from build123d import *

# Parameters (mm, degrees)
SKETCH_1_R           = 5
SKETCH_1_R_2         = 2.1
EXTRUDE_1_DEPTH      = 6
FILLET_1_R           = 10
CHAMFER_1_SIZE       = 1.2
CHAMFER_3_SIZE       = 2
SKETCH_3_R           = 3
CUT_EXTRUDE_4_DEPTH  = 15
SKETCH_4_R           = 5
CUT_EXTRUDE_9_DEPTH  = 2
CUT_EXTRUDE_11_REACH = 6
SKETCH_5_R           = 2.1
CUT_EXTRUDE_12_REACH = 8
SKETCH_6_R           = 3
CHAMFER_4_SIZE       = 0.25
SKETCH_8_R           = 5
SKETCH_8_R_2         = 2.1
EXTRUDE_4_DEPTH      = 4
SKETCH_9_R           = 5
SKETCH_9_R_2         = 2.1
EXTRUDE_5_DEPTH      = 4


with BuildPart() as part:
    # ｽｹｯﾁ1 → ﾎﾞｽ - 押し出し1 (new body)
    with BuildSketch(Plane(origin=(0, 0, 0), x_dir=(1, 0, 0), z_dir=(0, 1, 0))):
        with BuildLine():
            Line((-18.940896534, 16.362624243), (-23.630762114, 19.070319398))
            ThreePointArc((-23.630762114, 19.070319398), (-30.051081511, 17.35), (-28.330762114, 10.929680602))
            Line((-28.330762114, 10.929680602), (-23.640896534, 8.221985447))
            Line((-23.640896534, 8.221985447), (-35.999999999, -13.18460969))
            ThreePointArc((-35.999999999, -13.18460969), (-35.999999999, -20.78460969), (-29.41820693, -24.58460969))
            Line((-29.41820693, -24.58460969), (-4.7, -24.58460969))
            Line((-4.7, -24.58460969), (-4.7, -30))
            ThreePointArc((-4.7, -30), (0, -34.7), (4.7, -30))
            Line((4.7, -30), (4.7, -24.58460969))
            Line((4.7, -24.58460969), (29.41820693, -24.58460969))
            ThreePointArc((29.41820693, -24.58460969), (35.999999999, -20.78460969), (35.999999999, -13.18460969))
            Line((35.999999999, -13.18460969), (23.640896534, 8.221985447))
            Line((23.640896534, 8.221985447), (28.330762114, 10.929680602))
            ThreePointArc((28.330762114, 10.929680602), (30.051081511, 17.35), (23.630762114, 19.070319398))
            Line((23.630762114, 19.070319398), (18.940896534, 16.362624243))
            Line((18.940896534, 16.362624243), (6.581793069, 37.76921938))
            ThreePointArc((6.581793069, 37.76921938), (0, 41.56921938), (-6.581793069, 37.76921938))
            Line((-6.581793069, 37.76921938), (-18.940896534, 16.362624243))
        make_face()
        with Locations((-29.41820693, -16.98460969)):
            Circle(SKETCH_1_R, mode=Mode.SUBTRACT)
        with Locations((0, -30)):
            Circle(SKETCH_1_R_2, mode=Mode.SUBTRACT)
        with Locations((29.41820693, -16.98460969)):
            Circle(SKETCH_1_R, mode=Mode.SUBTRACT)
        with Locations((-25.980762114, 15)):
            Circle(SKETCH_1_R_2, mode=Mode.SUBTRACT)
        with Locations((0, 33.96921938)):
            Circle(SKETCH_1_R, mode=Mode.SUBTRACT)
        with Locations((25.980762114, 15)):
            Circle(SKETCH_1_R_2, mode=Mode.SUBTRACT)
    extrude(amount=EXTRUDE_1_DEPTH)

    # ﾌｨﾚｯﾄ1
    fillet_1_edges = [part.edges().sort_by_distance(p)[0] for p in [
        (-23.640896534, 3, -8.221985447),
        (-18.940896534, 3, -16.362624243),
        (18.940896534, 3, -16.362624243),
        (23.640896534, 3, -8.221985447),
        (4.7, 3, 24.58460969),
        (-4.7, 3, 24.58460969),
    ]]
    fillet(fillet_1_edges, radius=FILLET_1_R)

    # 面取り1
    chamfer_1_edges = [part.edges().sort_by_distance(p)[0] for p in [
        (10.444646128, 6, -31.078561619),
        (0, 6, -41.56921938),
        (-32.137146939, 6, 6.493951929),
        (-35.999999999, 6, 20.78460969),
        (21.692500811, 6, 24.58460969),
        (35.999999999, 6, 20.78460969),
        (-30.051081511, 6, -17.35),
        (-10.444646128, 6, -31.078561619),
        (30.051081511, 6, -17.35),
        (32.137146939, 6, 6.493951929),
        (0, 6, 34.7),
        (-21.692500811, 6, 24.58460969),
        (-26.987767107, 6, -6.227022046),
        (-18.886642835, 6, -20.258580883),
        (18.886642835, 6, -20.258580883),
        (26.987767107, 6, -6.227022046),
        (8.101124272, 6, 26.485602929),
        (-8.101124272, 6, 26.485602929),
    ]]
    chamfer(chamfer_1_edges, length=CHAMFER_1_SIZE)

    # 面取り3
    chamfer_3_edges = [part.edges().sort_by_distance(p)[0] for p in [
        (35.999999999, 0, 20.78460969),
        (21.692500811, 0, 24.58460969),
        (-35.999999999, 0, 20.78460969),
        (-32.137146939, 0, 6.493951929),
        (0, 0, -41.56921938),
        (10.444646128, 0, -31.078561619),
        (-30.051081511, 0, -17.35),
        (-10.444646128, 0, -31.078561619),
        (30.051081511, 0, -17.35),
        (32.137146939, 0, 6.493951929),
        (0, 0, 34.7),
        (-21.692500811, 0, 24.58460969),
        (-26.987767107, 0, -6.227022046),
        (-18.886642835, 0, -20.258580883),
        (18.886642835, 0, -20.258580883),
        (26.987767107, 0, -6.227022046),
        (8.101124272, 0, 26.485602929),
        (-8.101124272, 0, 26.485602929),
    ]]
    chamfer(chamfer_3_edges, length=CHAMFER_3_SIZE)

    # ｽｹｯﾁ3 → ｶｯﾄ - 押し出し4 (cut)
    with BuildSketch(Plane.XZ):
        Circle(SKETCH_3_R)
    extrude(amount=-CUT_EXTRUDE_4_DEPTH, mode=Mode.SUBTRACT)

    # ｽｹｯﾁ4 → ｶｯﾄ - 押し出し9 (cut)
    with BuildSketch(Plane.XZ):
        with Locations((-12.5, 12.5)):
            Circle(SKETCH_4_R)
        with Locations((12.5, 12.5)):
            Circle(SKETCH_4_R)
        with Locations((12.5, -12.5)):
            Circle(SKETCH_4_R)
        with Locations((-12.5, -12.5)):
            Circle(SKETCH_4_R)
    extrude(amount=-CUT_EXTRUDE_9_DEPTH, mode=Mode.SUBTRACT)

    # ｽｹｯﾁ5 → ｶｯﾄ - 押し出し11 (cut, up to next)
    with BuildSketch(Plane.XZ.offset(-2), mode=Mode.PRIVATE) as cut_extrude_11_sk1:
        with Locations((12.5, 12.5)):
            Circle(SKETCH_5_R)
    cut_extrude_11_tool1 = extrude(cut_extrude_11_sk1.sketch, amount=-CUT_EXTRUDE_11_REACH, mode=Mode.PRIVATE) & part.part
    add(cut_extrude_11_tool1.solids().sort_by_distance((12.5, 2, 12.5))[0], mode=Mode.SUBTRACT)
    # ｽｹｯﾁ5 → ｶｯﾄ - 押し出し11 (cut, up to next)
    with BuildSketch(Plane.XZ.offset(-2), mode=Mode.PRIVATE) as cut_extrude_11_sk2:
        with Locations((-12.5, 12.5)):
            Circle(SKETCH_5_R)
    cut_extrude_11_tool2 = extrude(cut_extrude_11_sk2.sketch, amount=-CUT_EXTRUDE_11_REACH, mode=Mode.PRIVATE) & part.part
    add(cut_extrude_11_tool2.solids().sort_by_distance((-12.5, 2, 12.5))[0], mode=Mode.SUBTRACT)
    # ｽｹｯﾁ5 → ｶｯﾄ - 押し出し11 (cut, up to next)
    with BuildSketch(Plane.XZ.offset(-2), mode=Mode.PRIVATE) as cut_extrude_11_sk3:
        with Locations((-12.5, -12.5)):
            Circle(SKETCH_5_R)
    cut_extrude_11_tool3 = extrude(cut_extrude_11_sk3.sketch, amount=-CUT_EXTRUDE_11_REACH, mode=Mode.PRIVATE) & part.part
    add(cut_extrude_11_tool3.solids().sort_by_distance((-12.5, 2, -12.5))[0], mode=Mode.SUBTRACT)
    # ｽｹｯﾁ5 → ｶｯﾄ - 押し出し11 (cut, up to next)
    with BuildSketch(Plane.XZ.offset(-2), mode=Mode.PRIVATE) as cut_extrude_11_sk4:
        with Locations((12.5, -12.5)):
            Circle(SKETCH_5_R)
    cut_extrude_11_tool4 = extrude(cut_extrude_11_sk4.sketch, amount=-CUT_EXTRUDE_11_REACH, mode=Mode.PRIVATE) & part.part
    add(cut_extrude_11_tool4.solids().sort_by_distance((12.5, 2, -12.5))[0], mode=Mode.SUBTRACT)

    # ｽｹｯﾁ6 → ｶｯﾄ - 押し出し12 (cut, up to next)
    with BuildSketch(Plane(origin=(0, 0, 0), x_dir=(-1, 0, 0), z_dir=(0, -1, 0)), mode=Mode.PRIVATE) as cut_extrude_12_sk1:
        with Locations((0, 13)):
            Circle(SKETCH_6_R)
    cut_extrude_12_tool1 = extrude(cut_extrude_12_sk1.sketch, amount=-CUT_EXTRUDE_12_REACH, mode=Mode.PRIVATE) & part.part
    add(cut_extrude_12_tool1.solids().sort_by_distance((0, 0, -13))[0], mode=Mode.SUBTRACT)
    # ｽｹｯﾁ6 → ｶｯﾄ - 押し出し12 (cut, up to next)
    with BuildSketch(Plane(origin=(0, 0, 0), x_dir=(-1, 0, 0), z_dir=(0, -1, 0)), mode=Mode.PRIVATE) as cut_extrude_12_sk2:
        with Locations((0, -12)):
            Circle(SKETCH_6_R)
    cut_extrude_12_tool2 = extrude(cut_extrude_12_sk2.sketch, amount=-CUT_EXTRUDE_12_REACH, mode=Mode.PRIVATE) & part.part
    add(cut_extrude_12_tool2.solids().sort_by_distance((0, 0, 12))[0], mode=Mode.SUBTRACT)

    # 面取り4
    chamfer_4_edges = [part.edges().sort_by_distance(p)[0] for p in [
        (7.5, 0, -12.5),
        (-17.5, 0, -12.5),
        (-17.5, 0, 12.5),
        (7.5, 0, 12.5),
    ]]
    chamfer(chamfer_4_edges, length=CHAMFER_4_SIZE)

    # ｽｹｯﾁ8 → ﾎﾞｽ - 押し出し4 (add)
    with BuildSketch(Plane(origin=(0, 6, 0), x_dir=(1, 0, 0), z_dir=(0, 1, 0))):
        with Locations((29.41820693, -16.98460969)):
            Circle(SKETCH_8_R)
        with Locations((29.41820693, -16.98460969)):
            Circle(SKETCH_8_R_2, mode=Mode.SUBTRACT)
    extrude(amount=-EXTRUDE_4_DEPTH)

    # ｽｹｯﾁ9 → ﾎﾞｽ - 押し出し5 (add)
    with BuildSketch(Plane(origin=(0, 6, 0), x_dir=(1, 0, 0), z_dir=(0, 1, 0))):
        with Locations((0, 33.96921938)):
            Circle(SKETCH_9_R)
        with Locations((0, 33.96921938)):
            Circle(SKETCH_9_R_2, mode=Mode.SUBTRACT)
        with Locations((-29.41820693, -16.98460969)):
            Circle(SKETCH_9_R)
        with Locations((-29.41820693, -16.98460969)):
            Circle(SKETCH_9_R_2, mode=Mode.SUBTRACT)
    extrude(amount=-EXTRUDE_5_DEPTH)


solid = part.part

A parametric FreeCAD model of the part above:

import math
import FreeCAD as App
import Part
import Sketcher
Q = App.Units.Quantity


def edges_at(feature, points):
    """Names of the edges that pass closest to the given points."""
    edges = feature.Shape.Edges
    near = lambda p: min(range(len(edges)), key=lambda i: edges[i].distToShape(Part.Vertex(*p))[0])
    return sorted({f"Edge{near(p) + 1}" for p in points})

doc = App.newDocument("Part")
body = doc.addObject("PartDesign::Body", "Body")

# Sketch on XZ plane
sketch1 = body.newObject("Sketcher::SketchObject", "Sketch")
sketch1.AttachmentSupport = (doc.getObject("XZ_Plane"), [""])
sketch1.MapMode = "FlatFace"
sketch1.addGeometry([
    Part.LineSegment(App.Vector(-18.9, -16.4, 0), App.Vector(-23.6, -19.1, 0)),  # 0
    Part.ArcOfCircle(Part.Circle(App.Vector(-26, -15, 0), App.Vector(0, 0, 1), 4.7), math.radians(120), math.radians(300)),  # 1
    Part.LineSegment(App.Vector(-28.3, -10.9, 0), App.Vector(-23.6, -8.2, 0)),  # 2
    Part.LineSegment(App.Vector(-23.6, -8.2, 0), App.Vector(-36, 13.2, 0)),  # 3
    Part.ArcOfCircle(Part.Circle(App.Vector(-29.4, 17, 0), App.Vector(0, 0, 1), 7.6), math.radians(90), math.radians(210)),  # 4
    Part.LineSegment(App.Vector(-29.4, 24.6, 0), App.Vector(-4.7, 24.6, 0)),  # 5
    Part.LineSegment(App.Vector(-4.7, 24.6, 0), App.Vector(-4.7, 30, 0)),  # 6
    Part.ArcOfCircle(Part.Circle(App.Vector(0, 30, 0), App.Vector(0, 0, 1), 4.7), math.radians(0), math.radians(180)),  # 7
    Part.LineSegment(App.Vector(4.7, 30, 0), App.Vector(4.7, 24.6, 0)),  # 8
    Part.LineSegment(App.Vector(4.7, 24.6, 0), App.Vector(29.4, 24.6, 0)),  # 9
    Part.ArcOfCircle(Part.Circle(App.Vector(29.4, 17, 0), App.Vector(0, 0, 1), 7.6), math.radians(-30), math.radians(90)),  # 10
    Part.LineSegment(App.Vector(36, 13.2, 0), App.Vector(23.6, -8.2, 0)),  # 11
    Part.LineSegment(App.Vector(23.6, -8.2, 0), App.Vector(28.3, -10.9, 0)),  # 12
    Part.ArcOfCircle(Part.Circle(App.Vector(26, -15, 0), App.Vector(0, 0, 1), 4.7), math.radians(-120), math.radians(60)),  # 13
    Part.LineSegment(App.Vector(23.6, -19.1, 0), App.Vector(18.9, -16.4, 0)),  # 14
    Part.LineSegment(App.Vector(18.9, -16.4, 0), App.Vector(6.6, -37.8, 0)),  # 15
    Part.ArcOfCircle(Part.Circle(App.Vector(0, -34, 0), App.Vector(0, 0, 1), 7.6), math.radians(-150), math.radians(-30)),  # 16
    Part.LineSegment(App.Vector(-6.6, -37.8, 0), App.Vector(-18.9, -16.4, 0)),  # 17
    Part.Circle(App.Vector(-29.4, 17, 0), App.Vector(0, 0, 1), 5),  # 18
    Part.Circle(App.Vector(0, 30, 0), App.Vector(0, 0, 1), 2.1),  # 19
    Part.Circle(App.Vector(29.4, 17, 0), App.Vector(0, 0, 1), 5),  # 20
    Part.Circle(App.Vector(-26, -15, 0), App.Vector(0, 0, 1), 2.1),  # 21
    Part.Circle(App.Vector(26, -15, 0), App.Vector(0, 0, 1), 2.1),  # 22
    Part.Circle(App.Vector(0, -34, 0), App.Vector(0, 0, 1), 5),  # 23
], False)
sketch1.addConstraint([
    Sketcher.Constraint("Tangent", 0, 2, 1, 2),
    Sketcher.Constraint("Tangent", 1, 1, 2, 1),
    Sketcher.Constraint("Coincident", 2, 2, 3, 1),
    Sketcher.Constraint("Tangent", 3, 2, 4, 2),
    Sketcher.Constraint("Tangent", 4, 1, 5, 1),
    Sketcher.Constraint("Coincident", 5, 2, 6, 1),
    Sketcher.Constraint("Tangent", 6, 2, 7, 2),
    Sketcher.Constraint("Tangent", 7, 1, 8, 1),
    Sketcher.Constraint("Coincident", 8, 2, 9, 1),
    Sketcher.Constraint("Tangent", 9, 2, 10, 2),
    Sketcher.Constraint("Tangent", 10, 1, 11, 1),
    Sketcher.Constraint("Coincident", 11, 2, 12, 1),
    Sketcher.Constraint("Tangent", 12, 2, 13, 2),
    Sketcher.Constraint("Tangent", 13, 1, 14, 1),
    Sketcher.Constraint("Coincident", 14, 2, 15, 1),
    Sketcher.Constraint("Tangent", 15, 2, 16, 2),
    Sketcher.Constraint("Tangent", 16, 1, 17, 1),
    Sketcher.Constraint("Coincident", 17, 2, 0, 1),
    Sketcher.Constraint("Horizontal", 5),
    Sketcher.Constraint("Vertical", 6),
    Sketcher.Constraint("Vertical", 8),
    Sketcher.Constraint("Horizontal", 9),
    Sketcher.Constraint("Coincident", 18, 3, 4, 3),
    Sketcher.Constraint("Coincident", 19, 3, 7, 3),
    Sketcher.Constraint("Coincident", 20, 3, 10, 3),
    Sketcher.Constraint("Coincident", 21, 3, 1, 3),
    Sketcher.Constraint("Coincident", 22, 3, 13, 3),
    Sketcher.Constraint("Coincident", 23, 3, 16, 3),
    Sketcher.Constraint("Equal", 1, 7),
    Sketcher.Constraint("Equal", 4, 10),
    Sketcher.Constraint("Equal", 7, 13),
    Sketcher.Constraint("Equal", 10, 16),
    Sketcher.Constraint("Equal", 18, 20),
    Sketcher.Constraint("Equal", 19, 21),
    Sketcher.Constraint("Equal", 21, 22),
    Sketcher.Constraint("Equal", 20, 23),
    Sketcher.Constraint("Symmetric", 4, 3, 10, 3, -2),
    Sketcher.Constraint("Symmetric", 1, 3, 13, 3, -2),
    Sketcher.Constraint("Symmetric", 2, 2, 11, 2, -2),
    Sketcher.Constraint("Symmetric", 15, 2, 16, 1, -2),
    Sketcher.Constraint("PointOnObject", 7, 3, -2),
    Sketcher.Constraint("Parallel", 0, 2),
    Sketcher.Constraint("Perpendicular", 2, 3),
    Sketcher.Constraint("Parallel", 12, 14),
    Sketcher.Constraint("Perpendicular", 14, 15),
    Sketcher.Constraint("Equal", 0, 2),
    Sketcher.Constraint("Equal", 11, 15),
    Sketcher.Constraint("Diameter", 18, Q("10 mm")),
    Sketcher.Constraint("Diameter", 19, Q("4.2 mm")),
    Sketcher.Constraint("Radius", 1, Q("4.7 mm")),
    Sketcher.Constraint("Radius", 4, Q("7.6 mm")),
    Sketcher.Constraint("Angle", 0, Q("-150 deg")),
    Sketcher.Constraint("DistanceY", 1, 3, -1, 1, Q("15 mm")),
    Sketcher.Constraint("DistanceY", -1, 1, 7, 3, Q("30 mm")),
    Sketcher.Constraint("DistanceX", 3, 2, -1, 1, Q("36 mm")),
    Sketcher.Constraint("DistanceY", 6, 1, 6, 2, Q("5.41539 mm")),
])
pad1 = body.newObject("PartDesign::Pad", "Pad")
pad1.Profile = sketch1
pad1.Length = 6
pad1.Reversed = True
doc.recompute()

fillet = body.newObject("PartDesign::Fillet", "Fillet")
fillet.Base = (pad1, edges_at(pad1, [
    (-23.641, 3, -8.222),
    (-18.941, 3, -16.363),
    (18.941, 3, -16.363),
    (23.641, 3, -8.222),
    (4.7, 3, 24.585),
    (-4.7, 3, 24.585),
]))
fillet.Radius = 10
doc.recompute()

chamfer = body.newObject("PartDesign::Chamfer", "Chamfer")
chamfer.Base = (fillet, edges_at(fillet, [
    (10.445, 6, -31.079),
    (0, 6, -41.569),
    (-32.137, 6, 6.494),
    (-36, 6, 20.785),
    (21.693, 6, 24.585),
    (36, 6, 20.785),
    (-30.051, 6, -17.35),
    (-10.445, 6, -31.079),
    (30.051, 6, -17.35),
    (32.137, 6, 6.494),
    (0, 6, 34.7),
    (-21.693, 6, 24.585),
    (-26.988, 6, -6.227),
    (-18.887, 6, -20.259),
    (18.887, 6, -20.259),
    (26.988, 6, -6.227),
    (8.101, 6, 26.486),
    (-8.101, 6, 26.486),
]))
chamfer.Size = 1.2
doc.recompute()

chamfer2 = body.newObject("PartDesign::Chamfer", "Chamfer001")
chamfer2.Base = (chamfer, edges_at(chamfer, [
    (36, 0, 20.785),
    (21.693, 0, 24.585),
    (-36, 0, 20.785),
    (-32.137, 0, 6.494),
    (0, 0, -41.569),
    (10.445, 0, -31.079),
    (-30.051, 0, -17.35),
    (-10.445, 0, -31.079),
    (30.051, 0, -17.35),
    (32.137, 0, 6.494),
    (0, 0, 34.7),
    (-21.693, 0, 24.585),
    (-26.988, 0, -6.227),
    (-18.887, 0, -20.259),
    (18.887, 0, -20.259),
    (26.988, 0, -6.227),
    (8.101, 0, 26.486),
    (-8.101, 0, 26.486),
]))
chamfer2.Size = 2

# Sketch on XZ plane
sketch2 = body.newObject("Sketcher::SketchObject", "Sketch001")
sketch2.AttachmentSupport = (doc.getObject("XZ_Plane"), [""])
sketch2.MapMode = "FlatFace"
sketch2.addGeometry(Part.Circle(App.Vector(0, 0, 0), App.Vector(0, 0, 1), 3), False)
sketch2.addConstraint([
    Sketcher.Constraint("Coincident", 0, 3, -1, 1),
    Sketcher.Constraint("Diameter", 0, Q("6 mm")),
])
pocket1 = body.newObject("PartDesign::Pocket", "Pocket")
pocket1.Profile = sketch2
pocket1.Length = 15

# Sketch on XZ plane
sketch3 = body.newObject("Sketcher::SketchObject", "Sketch002")
sketch3.AttachmentSupport = (doc.getObject("XZ_Plane"), [""])
sketch3.MapMode = "FlatFace"
sketch3.addGeometry([
    Part.Circle(App.Vector(-12, 12, 0), App.Vector(0, 0, 1), 5),
    Part.Circle(App.Vector(12, 12, 0), App.Vector(0, 0, 1), 5),
    Part.Circle(App.Vector(12, -12, 0), App.Vector(0, 0, 1), 5),
    Part.Circle(App.Vector(-12, -12, 0), App.Vector(0, 0, 1), 5),
], False)
sketch3.addConstraint([
    Sketcher.Constraint("Equal", 0, 1),
    Sketcher.Constraint("Equal", 1, 2),
    Sketcher.Constraint("Equal", 2, 3),
    Sketcher.Constraint("Symmetric", 0, 3, 2, 3, -1, 1),
    Sketcher.Constraint("Symmetric", 1, 3, 3, 3, -1, 1),
    Sketcher.Constraint("Symmetric", 0, 3, 1, 3, -2),
    Sketcher.Constraint("Diameter", 0, Q("10 mm")),
    Sketcher.Constraint("DistanceX", 0, 3, 1, 3, Q("25 mm")),
    Sketcher.Constraint("DistanceY", 2, 3, 1, 3, Q("25 mm")),
])
pocket2 = body.newObject("PartDesign::Pocket", "Pocket001")
pocket2.Profile = sketch3
pocket2.Length = 2

# Sketch on XZ plane
sketch4 = body.newObject("Sketcher::SketchObject", "Sketch003")
sketch4.AttachmentSupport = (doc.getObject("XZ_Plane"), [""])
sketch4.MapMode = "FlatFace"
sketch4.AttachmentOffset = App.Placement(App.Vector(0, 0, -2), App.Rotation())
sketch4.addGeometry(Part.Circle(App.Vector(12.5, 12.5, 0), App.Vector(0, 0, 1), 2.1), False)
sketch4.addConstraint([
    Sketcher.Constraint("Diameter", 0, Q("4.2 mm")),
    Sketcher.Constraint("DistanceX", -1, 1, 0, 3, Q("12.5 mm")),
    Sketcher.Constraint("DistanceY", -1, 1, 0, 3, Q("12.5 mm")),
])
pocket3 = body.newObject("PartDesign::Pocket", "Pocket002")
pocket3.Profile = sketch4
pocket3.Type = "UpToFirst"

# Sketch on XZ plane
sketch5 = body.newObject("Sketcher::SketchObject", "Sketch004")
sketch5.AttachmentSupport = (doc.getObject("XZ_Plane"), [""])
sketch5.MapMode = "FlatFace"
sketch5.AttachmentOffset = App.Placement(App.Vector(0, 0, -2), App.Rotation())
sketch5.addGeometry(Part.Circle(App.Vector(-12.5, 12.5, 0), App.Vector(0, 0, 1), 2.1), False)
sketch5.addConstraint([
    Sketcher.Constraint("Diameter", 0, Q("4.2 mm")),
    Sketcher.Constraint("DistanceX", 0, 3, -1, 1, Q("12.5 mm")),
    Sketcher.Constraint("DistanceY", -1, 1, 0, 3, Q("12.5 mm")),
])
pocket4 = body.newObject("PartDesign::Pocket", "Pocket003")
pocket4.Profile = sketch5
pocket4.Type = "UpToFirst"

# Sketch on XZ plane
sketch6 = body.newObject("Sketcher::SketchObject", "Sketch005")
sketch6.AttachmentSupport = (doc.getObject("XZ_Plane"), [""])
sketch6.MapMode = "FlatFace"
sketch6.AttachmentOffset = App.Placement(App.Vector(0, 0, -2), App.Rotation())
sketch6.addGeometry(Part.Circle(App.Vector(-12.5, -12.5, 0), App.Vector(0, 0, 1), 2.1), False)
sketch6.addConstraint([
    Sketcher.Constraint("Diameter", 0, Q("4.2 mm")),
    Sketcher.Constraint("DistanceX", 0, 3, -1, 1, Q("12.5 mm")),
    Sketcher.Constraint("DistanceY", 0, 3, -1, 1, Q("12.5 mm")),
])
pocket5 = body.newObject("PartDesign::Pocket", "Pocket004")
pocket5.Profile = sketch6
pocket5.Type = "UpToFirst"

# Sketch on XZ plane
sketch7 = body.newObject("Sketcher::SketchObject", "Sketch006")
sketch7.AttachmentSupport = (doc.getObject("XZ_Plane"), [""])
sketch7.MapMode = "FlatFace"
sketch7.AttachmentOffset = App.Placement(App.Vector(0, 0, -2), App.Rotation())
sketch7.addGeometry(Part.Circle(App.Vector(12.5, -12.5, 0), App.Vector(0, 0, 1), 2.1), False)
sketch7.addConstraint([
    Sketcher.Constraint("Diameter", 0, Q("4.2 mm")),
    Sketcher.Constraint("DistanceX", -1, 1, 0, 3, Q("12.5 mm")),
    Sketcher.Constraint("DistanceY", 0, 3, -1, 1, Q("12.5 mm")),
])
pocket6 = body.newObject("PartDesign::Pocket", "Pocket005")
pocket6.Profile = sketch7
pocket6.Type = "UpToFirst"

# Sketch on XZ plane
sketch8 = body.newObject("Sketcher::SketchObject", "Sketch007")
sketch8.AttachmentSupport = (doc.getObject("XZ_Plane"), [""])
sketch8.MapMode = "FlatFace"
sketch8.addGeometry(Part.Circle(App.Vector(0, -13, 0), App.Vector(0, 0, 1), 3), False)
sketch8.addConstraint([
    Sketcher.Constraint("PointOnObject", 0, 3, -2),
    Sketcher.Constraint("Diameter", 0, Q("6 mm")),
    Sketcher.Constraint("DistanceY", 0, 3, -1, 1, Q("13 mm")),
])
pocket7 = body.newObject("PartDesign::Pocket", "Pocket006")
pocket7.Profile = sketch8
pocket7.Type = "UpToFirst"

# Sketch on XZ plane
sketch9 = body.newObject("Sketcher::SketchObject", "Sketch008")
sketch9.AttachmentSupport = (doc.getObject("XZ_Plane"), [""])
sketch9.MapMode = "FlatFace"
sketch9.addGeometry(Part.Circle(App.Vector(0, 12, 0), App.Vector(0, 0, 1), 3), False)
sketch9.addConstraint([
    Sketcher.Constraint("PointOnObject", 0, 3, -2),
    Sketcher.Constraint("Diameter", 0, Q("6 mm")),
    Sketcher.Constraint("DistanceY", -1, 1, 0, 3, Q("12 mm")),
])
pocket8 = body.newObject("PartDesign::Pocket", "Pocket007")
pocket8.Profile = sketch9
pocket8.Type = "UpToFirst"
doc.recompute()

chamfer3 = body.newObject("PartDesign::Chamfer", "Chamfer002")
chamfer3.Base = (pocket8, edges_at(pocket8, [
    (7.5, 0, -12.5),
    (-17.5, 0, -12.5),
    (-17.5, 0, 12.5),
    (7.5, 0, 12.5),
]))
chamfer3.Size = 0.25

# Sketch on XZ plane
sketch10 = body.newObject("Sketcher::SketchObject", "Sketch009")
sketch10.AttachmentSupport = (doc.getObject("XZ_Plane"), [""])
sketch10.MapMode = "FlatFace"
sketch10.AttachmentOffset = App.Placement(App.Vector(0, 0, -6), App.Rotation())
sketch10.addGeometry([
    Part.Circle(App.Vector(29.4, 17, 0), App.Vector(0, 0, 1), 5),
    Part.Circle(App.Vector(29.4, 17, 0), App.Vector(0, 0, 1), 2.1),
], False)
sketch10.addConstraint([
    Sketcher.Constraint("Coincident", 1, 3, 0, 3),
    Sketcher.Constraint("Diameter", 0, Q("10 mm")),
    Sketcher.Constraint("Diameter", 1, Q("4.2 mm")),
    Sketcher.Constraint("DistanceY", -1, 1, 0, 3, Q("16.98461 mm")),
    Sketcher.Constraint("DistanceX", -1, 1, 0, 3, Q("29.418207 mm")),
])
pad2 = body.newObject("PartDesign::Pad", "Pad001")
pad2.Profile = sketch10
pad2.Length = 4

# Sketch on XZ plane
sketch11 = body.newObject("Sketcher::SketchObject", "Sketch010")
sketch11.AttachmentSupport = (doc.getObject("XZ_Plane"), [""])
sketch11.MapMode = "FlatFace"
sketch11.AttachmentOffset = App.Placement(App.Vector(0, 0, -6), App.Rotation())
sketch11.addGeometry([
    Part.Circle(App.Vector(0, -34, 0), App.Vector(0, 0, 1), 5),
    Part.Circle(App.Vector(0, -34, 0), App.Vector(0, 0, 1), 2.1),
    Part.Circle(App.Vector(-29.4, 17, 0), App.Vector(0, 0, 1), 5),
    Part.Circle(App.Vector(-29.4, 17, 0), App.Vector(0, 0, 1), 2.1),
], False)
sketch11.addConstraint([
    Sketcher.Constraint("Coincident", 1, 3, 0, 3),
    Sketcher.Constraint("Coincident", 3, 3, 2, 3),
    Sketcher.Constraint("Equal", 0, 2),
    Sketcher.Constraint("Equal", 1, 3),
    Sketcher.Constraint("PointOnObject", 0, 3, -2),
    Sketcher.Constraint("Diameter", 0, Q("10 mm")),
    Sketcher.Constraint("Diameter", 1, Q("4.2 mm")),
    Sketcher.Constraint("DistanceY", 0, 3, -1, 1, Q("33.969219 mm")),
    Sketcher.Constraint("DistanceY", -1, 1, 2, 3, Q("16.98461 mm")),
    Sketcher.Constraint("DistanceX", 2, 3, -1, 1, Q("29.418207 mm")),
])
pad3 = body.newObject("PartDesign::Pad", "Pad002")
pad3.Profile = sketch11
pad3.Length = 4

doc.recompute()
